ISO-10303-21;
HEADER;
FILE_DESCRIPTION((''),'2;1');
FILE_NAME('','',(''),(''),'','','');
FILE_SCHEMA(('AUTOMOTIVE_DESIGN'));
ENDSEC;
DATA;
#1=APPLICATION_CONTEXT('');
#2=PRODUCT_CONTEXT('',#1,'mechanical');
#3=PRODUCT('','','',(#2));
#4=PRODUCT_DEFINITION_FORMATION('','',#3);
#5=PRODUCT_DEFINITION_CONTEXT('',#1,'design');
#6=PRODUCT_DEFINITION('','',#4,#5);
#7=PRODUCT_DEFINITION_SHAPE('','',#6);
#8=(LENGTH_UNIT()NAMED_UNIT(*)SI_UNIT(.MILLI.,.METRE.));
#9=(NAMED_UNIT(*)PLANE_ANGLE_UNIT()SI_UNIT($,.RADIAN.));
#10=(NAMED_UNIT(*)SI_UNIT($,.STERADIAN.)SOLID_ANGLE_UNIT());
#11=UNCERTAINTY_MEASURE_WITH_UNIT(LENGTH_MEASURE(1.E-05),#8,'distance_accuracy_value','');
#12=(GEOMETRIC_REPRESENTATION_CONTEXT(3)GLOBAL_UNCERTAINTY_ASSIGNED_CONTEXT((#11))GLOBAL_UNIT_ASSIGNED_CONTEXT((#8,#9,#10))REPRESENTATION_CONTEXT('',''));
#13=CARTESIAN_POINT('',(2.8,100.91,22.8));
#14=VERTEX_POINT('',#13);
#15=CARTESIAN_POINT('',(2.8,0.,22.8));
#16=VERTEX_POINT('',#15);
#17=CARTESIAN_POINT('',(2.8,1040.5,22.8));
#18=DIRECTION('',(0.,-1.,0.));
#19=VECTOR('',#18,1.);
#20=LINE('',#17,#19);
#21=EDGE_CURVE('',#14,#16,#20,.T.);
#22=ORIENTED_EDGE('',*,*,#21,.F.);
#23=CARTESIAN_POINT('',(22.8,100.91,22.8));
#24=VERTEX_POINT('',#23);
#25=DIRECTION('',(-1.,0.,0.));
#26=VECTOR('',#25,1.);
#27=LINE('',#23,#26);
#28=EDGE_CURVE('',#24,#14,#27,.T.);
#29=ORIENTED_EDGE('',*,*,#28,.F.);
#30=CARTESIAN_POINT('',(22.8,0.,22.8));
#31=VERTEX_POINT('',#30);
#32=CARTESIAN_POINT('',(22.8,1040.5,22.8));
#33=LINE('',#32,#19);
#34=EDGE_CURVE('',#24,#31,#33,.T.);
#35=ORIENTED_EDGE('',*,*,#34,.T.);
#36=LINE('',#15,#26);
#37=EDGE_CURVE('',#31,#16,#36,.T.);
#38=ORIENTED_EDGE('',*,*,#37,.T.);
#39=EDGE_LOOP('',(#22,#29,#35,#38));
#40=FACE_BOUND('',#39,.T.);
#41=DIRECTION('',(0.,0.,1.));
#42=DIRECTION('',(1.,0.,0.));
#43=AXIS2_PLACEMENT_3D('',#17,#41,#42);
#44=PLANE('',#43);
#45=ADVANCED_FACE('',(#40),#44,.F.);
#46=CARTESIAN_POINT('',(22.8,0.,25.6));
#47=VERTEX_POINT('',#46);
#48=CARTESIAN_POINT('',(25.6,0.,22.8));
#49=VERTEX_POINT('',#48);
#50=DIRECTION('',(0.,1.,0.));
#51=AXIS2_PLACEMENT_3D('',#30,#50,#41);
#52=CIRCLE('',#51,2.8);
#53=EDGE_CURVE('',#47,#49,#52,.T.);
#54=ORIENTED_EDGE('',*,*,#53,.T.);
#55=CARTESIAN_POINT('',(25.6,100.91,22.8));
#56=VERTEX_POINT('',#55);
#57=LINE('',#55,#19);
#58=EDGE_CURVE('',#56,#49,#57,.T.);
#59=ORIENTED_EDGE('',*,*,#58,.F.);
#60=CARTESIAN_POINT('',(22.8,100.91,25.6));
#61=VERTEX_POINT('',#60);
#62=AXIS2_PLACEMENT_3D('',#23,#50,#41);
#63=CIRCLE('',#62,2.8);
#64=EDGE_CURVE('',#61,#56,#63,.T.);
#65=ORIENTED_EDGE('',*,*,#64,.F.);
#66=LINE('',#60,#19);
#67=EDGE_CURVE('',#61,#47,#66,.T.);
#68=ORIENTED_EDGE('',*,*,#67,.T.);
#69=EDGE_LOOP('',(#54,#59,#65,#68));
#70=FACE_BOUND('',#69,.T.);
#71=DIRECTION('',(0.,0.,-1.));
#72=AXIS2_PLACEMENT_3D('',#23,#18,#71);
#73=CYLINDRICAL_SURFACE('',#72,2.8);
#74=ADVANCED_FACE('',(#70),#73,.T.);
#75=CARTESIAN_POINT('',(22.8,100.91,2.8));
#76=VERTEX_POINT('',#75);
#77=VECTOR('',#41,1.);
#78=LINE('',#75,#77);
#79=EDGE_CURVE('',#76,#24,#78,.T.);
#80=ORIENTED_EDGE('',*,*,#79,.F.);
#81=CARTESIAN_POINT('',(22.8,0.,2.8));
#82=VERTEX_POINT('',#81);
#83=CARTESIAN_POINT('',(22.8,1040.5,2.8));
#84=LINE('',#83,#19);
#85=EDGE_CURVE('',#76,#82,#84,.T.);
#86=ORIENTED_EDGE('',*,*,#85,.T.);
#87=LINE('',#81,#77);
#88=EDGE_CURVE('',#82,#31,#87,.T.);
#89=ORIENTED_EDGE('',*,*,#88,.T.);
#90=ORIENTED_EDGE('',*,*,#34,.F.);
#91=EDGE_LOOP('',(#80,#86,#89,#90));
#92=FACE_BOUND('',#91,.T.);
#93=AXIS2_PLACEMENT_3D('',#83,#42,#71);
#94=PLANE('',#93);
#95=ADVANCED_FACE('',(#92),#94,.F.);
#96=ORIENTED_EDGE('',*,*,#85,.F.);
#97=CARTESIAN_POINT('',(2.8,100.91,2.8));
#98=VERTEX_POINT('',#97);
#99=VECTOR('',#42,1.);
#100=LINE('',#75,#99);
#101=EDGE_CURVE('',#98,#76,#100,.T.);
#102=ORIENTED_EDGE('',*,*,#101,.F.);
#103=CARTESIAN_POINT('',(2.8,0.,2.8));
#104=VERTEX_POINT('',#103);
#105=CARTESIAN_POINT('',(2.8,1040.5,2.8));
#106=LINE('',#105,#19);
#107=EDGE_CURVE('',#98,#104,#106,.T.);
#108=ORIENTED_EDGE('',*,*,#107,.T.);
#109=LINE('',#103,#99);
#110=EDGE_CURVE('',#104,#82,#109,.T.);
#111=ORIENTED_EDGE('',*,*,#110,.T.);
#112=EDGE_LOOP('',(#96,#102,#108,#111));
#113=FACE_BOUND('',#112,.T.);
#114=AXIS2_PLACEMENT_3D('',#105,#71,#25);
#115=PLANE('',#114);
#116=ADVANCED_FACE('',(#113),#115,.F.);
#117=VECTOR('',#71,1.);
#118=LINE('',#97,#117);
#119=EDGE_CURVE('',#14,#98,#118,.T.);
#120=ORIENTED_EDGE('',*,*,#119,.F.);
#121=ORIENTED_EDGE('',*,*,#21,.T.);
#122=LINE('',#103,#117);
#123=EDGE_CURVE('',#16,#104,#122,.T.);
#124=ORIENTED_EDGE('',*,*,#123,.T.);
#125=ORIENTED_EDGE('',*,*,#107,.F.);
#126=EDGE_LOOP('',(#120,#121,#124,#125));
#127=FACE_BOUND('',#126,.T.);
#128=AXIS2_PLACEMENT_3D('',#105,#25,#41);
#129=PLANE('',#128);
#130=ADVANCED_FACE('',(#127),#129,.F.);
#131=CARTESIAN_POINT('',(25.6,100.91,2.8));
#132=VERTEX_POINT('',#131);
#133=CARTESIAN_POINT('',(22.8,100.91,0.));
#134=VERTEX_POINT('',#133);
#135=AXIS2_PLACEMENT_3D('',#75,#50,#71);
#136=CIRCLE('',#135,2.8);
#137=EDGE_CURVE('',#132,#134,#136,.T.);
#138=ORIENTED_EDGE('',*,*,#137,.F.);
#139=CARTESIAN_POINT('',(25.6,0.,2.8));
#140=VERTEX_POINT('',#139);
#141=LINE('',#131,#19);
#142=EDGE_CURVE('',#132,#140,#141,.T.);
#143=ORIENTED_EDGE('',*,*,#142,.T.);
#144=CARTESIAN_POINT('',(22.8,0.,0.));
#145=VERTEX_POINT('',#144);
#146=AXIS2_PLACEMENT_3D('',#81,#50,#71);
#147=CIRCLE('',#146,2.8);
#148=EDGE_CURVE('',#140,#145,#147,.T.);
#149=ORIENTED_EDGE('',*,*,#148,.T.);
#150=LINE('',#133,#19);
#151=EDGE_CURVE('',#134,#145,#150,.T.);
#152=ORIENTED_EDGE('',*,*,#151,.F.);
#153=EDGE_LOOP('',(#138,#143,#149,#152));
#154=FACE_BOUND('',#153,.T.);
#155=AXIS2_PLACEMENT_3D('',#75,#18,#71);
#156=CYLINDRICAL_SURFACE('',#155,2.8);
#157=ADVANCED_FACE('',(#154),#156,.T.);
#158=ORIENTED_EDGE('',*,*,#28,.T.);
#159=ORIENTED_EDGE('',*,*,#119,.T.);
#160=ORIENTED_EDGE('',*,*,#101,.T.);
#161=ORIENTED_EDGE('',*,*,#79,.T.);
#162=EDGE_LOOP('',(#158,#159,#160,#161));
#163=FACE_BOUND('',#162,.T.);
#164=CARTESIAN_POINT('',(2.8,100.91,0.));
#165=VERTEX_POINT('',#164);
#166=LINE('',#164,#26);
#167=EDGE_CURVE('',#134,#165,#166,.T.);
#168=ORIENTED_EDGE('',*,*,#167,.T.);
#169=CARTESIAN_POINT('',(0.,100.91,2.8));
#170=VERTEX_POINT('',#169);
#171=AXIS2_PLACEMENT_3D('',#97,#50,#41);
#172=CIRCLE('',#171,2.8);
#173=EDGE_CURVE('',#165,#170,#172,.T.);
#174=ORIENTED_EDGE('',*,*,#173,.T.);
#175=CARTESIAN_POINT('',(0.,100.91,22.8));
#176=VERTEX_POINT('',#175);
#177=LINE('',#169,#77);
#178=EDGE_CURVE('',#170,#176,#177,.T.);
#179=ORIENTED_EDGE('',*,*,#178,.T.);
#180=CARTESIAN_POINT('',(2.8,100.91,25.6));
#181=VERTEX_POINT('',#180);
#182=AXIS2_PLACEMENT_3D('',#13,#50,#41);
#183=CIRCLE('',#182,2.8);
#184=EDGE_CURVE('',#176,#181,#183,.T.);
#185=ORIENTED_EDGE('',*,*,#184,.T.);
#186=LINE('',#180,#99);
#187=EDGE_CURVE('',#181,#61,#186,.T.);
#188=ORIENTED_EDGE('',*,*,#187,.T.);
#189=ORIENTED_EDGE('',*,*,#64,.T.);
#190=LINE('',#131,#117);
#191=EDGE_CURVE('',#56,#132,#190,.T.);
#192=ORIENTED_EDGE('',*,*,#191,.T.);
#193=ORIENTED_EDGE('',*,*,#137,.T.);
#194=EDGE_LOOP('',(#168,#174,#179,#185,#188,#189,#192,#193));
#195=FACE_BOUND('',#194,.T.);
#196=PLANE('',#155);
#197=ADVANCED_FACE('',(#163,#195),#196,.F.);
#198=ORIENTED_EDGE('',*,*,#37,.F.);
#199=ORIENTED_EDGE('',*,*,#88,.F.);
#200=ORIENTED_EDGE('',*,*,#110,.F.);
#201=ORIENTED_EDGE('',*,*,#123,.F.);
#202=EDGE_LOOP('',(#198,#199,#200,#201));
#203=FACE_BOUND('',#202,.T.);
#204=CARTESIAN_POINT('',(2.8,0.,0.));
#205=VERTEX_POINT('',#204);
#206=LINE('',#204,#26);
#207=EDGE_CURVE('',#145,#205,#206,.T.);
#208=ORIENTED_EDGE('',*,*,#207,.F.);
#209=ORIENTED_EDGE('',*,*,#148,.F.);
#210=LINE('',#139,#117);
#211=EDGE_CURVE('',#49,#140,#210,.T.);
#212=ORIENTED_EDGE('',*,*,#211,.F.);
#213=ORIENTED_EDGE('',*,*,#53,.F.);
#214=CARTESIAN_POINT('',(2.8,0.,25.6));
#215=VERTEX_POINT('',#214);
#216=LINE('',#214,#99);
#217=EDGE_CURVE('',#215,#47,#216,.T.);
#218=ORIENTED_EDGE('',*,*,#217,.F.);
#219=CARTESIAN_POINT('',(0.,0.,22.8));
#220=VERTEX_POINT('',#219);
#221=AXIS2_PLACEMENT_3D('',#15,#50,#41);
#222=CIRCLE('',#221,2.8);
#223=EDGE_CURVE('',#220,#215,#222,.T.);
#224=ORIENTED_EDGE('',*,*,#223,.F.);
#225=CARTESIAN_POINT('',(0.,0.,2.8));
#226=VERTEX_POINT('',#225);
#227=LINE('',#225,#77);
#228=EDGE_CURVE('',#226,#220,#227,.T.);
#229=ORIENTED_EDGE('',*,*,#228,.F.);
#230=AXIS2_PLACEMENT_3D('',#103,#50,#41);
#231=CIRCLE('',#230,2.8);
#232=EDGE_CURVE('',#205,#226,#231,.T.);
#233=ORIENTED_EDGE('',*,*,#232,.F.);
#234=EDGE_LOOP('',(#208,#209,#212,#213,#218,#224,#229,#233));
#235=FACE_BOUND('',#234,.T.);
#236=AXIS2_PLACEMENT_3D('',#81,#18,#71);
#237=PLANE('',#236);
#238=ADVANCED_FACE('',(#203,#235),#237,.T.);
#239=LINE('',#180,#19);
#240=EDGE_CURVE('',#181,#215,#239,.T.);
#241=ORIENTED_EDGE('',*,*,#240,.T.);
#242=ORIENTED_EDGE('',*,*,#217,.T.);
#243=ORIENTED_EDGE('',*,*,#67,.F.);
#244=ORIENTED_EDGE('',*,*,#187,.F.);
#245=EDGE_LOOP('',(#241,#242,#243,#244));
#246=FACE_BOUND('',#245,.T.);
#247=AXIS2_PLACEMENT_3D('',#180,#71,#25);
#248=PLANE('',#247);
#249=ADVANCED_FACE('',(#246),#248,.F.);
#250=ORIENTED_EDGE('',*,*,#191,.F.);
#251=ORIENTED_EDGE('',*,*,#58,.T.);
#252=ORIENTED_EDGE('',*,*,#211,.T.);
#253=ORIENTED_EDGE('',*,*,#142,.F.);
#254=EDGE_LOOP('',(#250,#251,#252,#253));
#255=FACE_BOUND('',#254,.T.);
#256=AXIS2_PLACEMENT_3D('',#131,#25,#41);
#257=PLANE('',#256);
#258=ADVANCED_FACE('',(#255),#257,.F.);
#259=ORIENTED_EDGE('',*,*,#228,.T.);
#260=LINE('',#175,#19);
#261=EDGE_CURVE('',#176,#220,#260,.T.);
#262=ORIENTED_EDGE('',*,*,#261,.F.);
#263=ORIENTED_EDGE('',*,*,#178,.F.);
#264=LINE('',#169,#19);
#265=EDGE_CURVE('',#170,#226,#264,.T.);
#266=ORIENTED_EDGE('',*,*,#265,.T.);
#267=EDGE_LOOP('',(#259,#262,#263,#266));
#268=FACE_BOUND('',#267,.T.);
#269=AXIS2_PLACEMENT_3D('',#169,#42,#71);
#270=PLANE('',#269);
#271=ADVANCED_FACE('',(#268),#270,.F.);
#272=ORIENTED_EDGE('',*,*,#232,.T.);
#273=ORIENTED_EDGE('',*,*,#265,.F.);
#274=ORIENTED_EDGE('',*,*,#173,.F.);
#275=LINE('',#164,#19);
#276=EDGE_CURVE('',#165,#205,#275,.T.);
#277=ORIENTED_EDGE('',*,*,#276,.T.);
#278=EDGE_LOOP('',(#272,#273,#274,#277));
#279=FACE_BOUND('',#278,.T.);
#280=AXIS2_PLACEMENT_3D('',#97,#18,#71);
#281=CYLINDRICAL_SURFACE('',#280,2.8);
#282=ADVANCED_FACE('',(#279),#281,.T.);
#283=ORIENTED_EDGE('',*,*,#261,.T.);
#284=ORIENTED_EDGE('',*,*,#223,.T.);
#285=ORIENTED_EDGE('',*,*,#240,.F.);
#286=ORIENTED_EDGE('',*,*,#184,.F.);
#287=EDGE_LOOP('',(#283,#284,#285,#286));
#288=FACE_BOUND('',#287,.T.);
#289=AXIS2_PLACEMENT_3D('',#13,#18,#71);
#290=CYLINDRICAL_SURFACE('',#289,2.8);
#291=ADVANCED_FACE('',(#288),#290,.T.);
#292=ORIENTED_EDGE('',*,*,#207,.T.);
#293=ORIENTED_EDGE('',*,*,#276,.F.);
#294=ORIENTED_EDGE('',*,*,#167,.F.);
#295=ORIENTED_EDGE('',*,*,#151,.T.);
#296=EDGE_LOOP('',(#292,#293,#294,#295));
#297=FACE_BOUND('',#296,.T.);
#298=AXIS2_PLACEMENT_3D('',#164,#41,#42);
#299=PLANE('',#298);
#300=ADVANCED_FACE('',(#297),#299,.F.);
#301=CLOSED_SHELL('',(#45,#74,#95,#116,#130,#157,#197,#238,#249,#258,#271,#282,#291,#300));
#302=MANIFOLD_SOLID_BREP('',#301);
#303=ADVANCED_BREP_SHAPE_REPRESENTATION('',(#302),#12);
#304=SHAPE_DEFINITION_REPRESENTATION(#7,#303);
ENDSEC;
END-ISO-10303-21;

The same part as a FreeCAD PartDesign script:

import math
import FreeCAD as App
import Part
import Sketcher

V = App.Vector
Q = App.Units.Quantity

doc = App.newDocument("Part")
body = doc.addObject("PartDesign::Body", "Body")

# Sketch on XZ plane
sketch1 = body.newObject("Sketcher::SketchObject", "Sketch")
sketch1.AttachmentSupport = (doc.getObject("XZ_Plane"), [""])
sketch1.MapMode = "FlatFace"
sketch1.addGeometry([
    Part.LineSegment(V(22.8, 0, 0), V(2.8, 0, 0)),  # 0
    Part.ArcOfCircle(Part.Circle(V(2.8, 2.8, 0), V(0, 0, 1), 2.8), math.radians(-180), math.radians(-90)),  # 1
    Part.LineSegment(V(0, 2.8, 0), V(0, 22.8, 0)),  # 2
    Part.ArcOfCircle(Part.Circle(V(2.8, 22.8, 0), V(0, 0, 1), 2.8), math.radians(90), math.radians(180)),  # 3
    Part.LineSegment(V(2.8, 25.6, 0), V(22.8, 25.6, 0)),  # 4
    Part.ArcOfCircle(Part.Circle(V(22.8, 22.8, 0), V(0, 0, 1), 2.8), math.radians(0), math.radians(90)),  # 5
    Part.LineSegment(V(25.6, 22.8, 0), V(25.6, 2.8, 0)),  # 6
    Part.ArcOfCircle(Part.Circle(V(22.8, 2.8, 0), V(0, 0, 1), 2.8), math.radians(-90), math.radians(0)),  # 7
], False)
sketch1.addConstraint([
    Sketcher.Constraint("Tangent", 0, 2, 1, 2),
    Sketcher.Constraint("Tangent", 1, 1, 2, 1),
    Sketcher.Constraint("Tangent", 2, 2, 3, 2),
    Sketcher.Constraint("Tangent", 3, 1, 4, 1),
    Sketcher.Constraint("Tangent", 4, 2, 5, 2),
    Sketcher.Constraint("Tangent", 5, 1, 6, 1),
    Sketcher.Constraint("Tangent", 6, 2, 7, 2),
    Sketcher.Constraint("Tangent", 7, 1, 0, 1),
    Sketcher.Constraint("Horizontal", 0),
    Sketcher.Constraint("Vertical", 2),
    Sketcher.Constraint("Horizontal", 4),
    Sketcher.Constraint("Vertical", 6),
    Sketcher.Constraint("Equal", 1, 3),
    Sketcher.Constraint("Equal", 3, 5),
    Sketcher.Constraint("Equal", 5, 7),
    Sketcher.Constraint("PointOnObject", 0, 2, -1),
    Sketcher.Constraint("PointOnObject", 1, 1, -2),
    Sketcher.Constraint("Equal", 4, 2),
    Sketcher.Constraint("Radius", 1, Q("2.8 mm")),
    Sketcher.Constraint("DistanceX", 0, 2, 0, 1, Q("20 mm")),
])
pad1 = body.newObject("PartDesign::Pad", "Pad")
pad1.Profile = sketch1
pad1.Length = 100.91
pad1.Reversed = True

# Sketch on XZ plane
sketch2 = body.newObject("Sketcher::SketchObject", "Sketch001")
sketch2.AttachmentSupport = (doc.getObject("XZ_Plane"), [""])
sketch2.MapMode = "FlatFace"
sketch2.addGeometry([
    Part.LineSegment(V(22.8, 2.8, 0), V(22.8, 22.8, 0)),
    Part.LineSegment(V(22.8, 22.8, 0), V(2.8, 22.8, 0)),
    Part.LineSegment(V(2.8, 22.8, 0), V(2.8, 2.8, 0)),
    Part.LineSegment(V(2.8, 2.8, 0), V(22.8, 2.8, 0)),
], False)
sketch2.addConstraint([
    Sketcher.Constraint("Coincident", 0, 2, 1, 1),
    Sketcher.Constraint("Coincident", 1, 2, 2, 1),
    Sketcher.Constraint("Coincident", 2, 2, 3, 1),
    Sketcher.Constraint("Coincident", 3, 2, 0, 1),
    Sketcher.Constraint("Vertical", 0),
    Sketcher.Constraint("Horizontal", 1),
    Sketcher.Constraint("Vertical", 2),
    Sketcher.Constraint("Horizontal", 3),
    Sketcher.Constraint("Equal", 3, 0),
    Sketcher.Constraint("DistanceX", 1, 2, 1, 1, Q("20 mm")),
    Sketcher.Constraint("DistanceX", -1, 1, 0, 2, Q("22.8 mm")),
    Sketcher.Constraint("DistanceY", -1, 1, 0, 2, Q("22.8 mm")),
])
pocket1 = body.newObject("PartDesign::Pocket", "Pocket")
pocket1.Profile = sketch2
pocket1.Length = 1040.5

doc.recompute()
